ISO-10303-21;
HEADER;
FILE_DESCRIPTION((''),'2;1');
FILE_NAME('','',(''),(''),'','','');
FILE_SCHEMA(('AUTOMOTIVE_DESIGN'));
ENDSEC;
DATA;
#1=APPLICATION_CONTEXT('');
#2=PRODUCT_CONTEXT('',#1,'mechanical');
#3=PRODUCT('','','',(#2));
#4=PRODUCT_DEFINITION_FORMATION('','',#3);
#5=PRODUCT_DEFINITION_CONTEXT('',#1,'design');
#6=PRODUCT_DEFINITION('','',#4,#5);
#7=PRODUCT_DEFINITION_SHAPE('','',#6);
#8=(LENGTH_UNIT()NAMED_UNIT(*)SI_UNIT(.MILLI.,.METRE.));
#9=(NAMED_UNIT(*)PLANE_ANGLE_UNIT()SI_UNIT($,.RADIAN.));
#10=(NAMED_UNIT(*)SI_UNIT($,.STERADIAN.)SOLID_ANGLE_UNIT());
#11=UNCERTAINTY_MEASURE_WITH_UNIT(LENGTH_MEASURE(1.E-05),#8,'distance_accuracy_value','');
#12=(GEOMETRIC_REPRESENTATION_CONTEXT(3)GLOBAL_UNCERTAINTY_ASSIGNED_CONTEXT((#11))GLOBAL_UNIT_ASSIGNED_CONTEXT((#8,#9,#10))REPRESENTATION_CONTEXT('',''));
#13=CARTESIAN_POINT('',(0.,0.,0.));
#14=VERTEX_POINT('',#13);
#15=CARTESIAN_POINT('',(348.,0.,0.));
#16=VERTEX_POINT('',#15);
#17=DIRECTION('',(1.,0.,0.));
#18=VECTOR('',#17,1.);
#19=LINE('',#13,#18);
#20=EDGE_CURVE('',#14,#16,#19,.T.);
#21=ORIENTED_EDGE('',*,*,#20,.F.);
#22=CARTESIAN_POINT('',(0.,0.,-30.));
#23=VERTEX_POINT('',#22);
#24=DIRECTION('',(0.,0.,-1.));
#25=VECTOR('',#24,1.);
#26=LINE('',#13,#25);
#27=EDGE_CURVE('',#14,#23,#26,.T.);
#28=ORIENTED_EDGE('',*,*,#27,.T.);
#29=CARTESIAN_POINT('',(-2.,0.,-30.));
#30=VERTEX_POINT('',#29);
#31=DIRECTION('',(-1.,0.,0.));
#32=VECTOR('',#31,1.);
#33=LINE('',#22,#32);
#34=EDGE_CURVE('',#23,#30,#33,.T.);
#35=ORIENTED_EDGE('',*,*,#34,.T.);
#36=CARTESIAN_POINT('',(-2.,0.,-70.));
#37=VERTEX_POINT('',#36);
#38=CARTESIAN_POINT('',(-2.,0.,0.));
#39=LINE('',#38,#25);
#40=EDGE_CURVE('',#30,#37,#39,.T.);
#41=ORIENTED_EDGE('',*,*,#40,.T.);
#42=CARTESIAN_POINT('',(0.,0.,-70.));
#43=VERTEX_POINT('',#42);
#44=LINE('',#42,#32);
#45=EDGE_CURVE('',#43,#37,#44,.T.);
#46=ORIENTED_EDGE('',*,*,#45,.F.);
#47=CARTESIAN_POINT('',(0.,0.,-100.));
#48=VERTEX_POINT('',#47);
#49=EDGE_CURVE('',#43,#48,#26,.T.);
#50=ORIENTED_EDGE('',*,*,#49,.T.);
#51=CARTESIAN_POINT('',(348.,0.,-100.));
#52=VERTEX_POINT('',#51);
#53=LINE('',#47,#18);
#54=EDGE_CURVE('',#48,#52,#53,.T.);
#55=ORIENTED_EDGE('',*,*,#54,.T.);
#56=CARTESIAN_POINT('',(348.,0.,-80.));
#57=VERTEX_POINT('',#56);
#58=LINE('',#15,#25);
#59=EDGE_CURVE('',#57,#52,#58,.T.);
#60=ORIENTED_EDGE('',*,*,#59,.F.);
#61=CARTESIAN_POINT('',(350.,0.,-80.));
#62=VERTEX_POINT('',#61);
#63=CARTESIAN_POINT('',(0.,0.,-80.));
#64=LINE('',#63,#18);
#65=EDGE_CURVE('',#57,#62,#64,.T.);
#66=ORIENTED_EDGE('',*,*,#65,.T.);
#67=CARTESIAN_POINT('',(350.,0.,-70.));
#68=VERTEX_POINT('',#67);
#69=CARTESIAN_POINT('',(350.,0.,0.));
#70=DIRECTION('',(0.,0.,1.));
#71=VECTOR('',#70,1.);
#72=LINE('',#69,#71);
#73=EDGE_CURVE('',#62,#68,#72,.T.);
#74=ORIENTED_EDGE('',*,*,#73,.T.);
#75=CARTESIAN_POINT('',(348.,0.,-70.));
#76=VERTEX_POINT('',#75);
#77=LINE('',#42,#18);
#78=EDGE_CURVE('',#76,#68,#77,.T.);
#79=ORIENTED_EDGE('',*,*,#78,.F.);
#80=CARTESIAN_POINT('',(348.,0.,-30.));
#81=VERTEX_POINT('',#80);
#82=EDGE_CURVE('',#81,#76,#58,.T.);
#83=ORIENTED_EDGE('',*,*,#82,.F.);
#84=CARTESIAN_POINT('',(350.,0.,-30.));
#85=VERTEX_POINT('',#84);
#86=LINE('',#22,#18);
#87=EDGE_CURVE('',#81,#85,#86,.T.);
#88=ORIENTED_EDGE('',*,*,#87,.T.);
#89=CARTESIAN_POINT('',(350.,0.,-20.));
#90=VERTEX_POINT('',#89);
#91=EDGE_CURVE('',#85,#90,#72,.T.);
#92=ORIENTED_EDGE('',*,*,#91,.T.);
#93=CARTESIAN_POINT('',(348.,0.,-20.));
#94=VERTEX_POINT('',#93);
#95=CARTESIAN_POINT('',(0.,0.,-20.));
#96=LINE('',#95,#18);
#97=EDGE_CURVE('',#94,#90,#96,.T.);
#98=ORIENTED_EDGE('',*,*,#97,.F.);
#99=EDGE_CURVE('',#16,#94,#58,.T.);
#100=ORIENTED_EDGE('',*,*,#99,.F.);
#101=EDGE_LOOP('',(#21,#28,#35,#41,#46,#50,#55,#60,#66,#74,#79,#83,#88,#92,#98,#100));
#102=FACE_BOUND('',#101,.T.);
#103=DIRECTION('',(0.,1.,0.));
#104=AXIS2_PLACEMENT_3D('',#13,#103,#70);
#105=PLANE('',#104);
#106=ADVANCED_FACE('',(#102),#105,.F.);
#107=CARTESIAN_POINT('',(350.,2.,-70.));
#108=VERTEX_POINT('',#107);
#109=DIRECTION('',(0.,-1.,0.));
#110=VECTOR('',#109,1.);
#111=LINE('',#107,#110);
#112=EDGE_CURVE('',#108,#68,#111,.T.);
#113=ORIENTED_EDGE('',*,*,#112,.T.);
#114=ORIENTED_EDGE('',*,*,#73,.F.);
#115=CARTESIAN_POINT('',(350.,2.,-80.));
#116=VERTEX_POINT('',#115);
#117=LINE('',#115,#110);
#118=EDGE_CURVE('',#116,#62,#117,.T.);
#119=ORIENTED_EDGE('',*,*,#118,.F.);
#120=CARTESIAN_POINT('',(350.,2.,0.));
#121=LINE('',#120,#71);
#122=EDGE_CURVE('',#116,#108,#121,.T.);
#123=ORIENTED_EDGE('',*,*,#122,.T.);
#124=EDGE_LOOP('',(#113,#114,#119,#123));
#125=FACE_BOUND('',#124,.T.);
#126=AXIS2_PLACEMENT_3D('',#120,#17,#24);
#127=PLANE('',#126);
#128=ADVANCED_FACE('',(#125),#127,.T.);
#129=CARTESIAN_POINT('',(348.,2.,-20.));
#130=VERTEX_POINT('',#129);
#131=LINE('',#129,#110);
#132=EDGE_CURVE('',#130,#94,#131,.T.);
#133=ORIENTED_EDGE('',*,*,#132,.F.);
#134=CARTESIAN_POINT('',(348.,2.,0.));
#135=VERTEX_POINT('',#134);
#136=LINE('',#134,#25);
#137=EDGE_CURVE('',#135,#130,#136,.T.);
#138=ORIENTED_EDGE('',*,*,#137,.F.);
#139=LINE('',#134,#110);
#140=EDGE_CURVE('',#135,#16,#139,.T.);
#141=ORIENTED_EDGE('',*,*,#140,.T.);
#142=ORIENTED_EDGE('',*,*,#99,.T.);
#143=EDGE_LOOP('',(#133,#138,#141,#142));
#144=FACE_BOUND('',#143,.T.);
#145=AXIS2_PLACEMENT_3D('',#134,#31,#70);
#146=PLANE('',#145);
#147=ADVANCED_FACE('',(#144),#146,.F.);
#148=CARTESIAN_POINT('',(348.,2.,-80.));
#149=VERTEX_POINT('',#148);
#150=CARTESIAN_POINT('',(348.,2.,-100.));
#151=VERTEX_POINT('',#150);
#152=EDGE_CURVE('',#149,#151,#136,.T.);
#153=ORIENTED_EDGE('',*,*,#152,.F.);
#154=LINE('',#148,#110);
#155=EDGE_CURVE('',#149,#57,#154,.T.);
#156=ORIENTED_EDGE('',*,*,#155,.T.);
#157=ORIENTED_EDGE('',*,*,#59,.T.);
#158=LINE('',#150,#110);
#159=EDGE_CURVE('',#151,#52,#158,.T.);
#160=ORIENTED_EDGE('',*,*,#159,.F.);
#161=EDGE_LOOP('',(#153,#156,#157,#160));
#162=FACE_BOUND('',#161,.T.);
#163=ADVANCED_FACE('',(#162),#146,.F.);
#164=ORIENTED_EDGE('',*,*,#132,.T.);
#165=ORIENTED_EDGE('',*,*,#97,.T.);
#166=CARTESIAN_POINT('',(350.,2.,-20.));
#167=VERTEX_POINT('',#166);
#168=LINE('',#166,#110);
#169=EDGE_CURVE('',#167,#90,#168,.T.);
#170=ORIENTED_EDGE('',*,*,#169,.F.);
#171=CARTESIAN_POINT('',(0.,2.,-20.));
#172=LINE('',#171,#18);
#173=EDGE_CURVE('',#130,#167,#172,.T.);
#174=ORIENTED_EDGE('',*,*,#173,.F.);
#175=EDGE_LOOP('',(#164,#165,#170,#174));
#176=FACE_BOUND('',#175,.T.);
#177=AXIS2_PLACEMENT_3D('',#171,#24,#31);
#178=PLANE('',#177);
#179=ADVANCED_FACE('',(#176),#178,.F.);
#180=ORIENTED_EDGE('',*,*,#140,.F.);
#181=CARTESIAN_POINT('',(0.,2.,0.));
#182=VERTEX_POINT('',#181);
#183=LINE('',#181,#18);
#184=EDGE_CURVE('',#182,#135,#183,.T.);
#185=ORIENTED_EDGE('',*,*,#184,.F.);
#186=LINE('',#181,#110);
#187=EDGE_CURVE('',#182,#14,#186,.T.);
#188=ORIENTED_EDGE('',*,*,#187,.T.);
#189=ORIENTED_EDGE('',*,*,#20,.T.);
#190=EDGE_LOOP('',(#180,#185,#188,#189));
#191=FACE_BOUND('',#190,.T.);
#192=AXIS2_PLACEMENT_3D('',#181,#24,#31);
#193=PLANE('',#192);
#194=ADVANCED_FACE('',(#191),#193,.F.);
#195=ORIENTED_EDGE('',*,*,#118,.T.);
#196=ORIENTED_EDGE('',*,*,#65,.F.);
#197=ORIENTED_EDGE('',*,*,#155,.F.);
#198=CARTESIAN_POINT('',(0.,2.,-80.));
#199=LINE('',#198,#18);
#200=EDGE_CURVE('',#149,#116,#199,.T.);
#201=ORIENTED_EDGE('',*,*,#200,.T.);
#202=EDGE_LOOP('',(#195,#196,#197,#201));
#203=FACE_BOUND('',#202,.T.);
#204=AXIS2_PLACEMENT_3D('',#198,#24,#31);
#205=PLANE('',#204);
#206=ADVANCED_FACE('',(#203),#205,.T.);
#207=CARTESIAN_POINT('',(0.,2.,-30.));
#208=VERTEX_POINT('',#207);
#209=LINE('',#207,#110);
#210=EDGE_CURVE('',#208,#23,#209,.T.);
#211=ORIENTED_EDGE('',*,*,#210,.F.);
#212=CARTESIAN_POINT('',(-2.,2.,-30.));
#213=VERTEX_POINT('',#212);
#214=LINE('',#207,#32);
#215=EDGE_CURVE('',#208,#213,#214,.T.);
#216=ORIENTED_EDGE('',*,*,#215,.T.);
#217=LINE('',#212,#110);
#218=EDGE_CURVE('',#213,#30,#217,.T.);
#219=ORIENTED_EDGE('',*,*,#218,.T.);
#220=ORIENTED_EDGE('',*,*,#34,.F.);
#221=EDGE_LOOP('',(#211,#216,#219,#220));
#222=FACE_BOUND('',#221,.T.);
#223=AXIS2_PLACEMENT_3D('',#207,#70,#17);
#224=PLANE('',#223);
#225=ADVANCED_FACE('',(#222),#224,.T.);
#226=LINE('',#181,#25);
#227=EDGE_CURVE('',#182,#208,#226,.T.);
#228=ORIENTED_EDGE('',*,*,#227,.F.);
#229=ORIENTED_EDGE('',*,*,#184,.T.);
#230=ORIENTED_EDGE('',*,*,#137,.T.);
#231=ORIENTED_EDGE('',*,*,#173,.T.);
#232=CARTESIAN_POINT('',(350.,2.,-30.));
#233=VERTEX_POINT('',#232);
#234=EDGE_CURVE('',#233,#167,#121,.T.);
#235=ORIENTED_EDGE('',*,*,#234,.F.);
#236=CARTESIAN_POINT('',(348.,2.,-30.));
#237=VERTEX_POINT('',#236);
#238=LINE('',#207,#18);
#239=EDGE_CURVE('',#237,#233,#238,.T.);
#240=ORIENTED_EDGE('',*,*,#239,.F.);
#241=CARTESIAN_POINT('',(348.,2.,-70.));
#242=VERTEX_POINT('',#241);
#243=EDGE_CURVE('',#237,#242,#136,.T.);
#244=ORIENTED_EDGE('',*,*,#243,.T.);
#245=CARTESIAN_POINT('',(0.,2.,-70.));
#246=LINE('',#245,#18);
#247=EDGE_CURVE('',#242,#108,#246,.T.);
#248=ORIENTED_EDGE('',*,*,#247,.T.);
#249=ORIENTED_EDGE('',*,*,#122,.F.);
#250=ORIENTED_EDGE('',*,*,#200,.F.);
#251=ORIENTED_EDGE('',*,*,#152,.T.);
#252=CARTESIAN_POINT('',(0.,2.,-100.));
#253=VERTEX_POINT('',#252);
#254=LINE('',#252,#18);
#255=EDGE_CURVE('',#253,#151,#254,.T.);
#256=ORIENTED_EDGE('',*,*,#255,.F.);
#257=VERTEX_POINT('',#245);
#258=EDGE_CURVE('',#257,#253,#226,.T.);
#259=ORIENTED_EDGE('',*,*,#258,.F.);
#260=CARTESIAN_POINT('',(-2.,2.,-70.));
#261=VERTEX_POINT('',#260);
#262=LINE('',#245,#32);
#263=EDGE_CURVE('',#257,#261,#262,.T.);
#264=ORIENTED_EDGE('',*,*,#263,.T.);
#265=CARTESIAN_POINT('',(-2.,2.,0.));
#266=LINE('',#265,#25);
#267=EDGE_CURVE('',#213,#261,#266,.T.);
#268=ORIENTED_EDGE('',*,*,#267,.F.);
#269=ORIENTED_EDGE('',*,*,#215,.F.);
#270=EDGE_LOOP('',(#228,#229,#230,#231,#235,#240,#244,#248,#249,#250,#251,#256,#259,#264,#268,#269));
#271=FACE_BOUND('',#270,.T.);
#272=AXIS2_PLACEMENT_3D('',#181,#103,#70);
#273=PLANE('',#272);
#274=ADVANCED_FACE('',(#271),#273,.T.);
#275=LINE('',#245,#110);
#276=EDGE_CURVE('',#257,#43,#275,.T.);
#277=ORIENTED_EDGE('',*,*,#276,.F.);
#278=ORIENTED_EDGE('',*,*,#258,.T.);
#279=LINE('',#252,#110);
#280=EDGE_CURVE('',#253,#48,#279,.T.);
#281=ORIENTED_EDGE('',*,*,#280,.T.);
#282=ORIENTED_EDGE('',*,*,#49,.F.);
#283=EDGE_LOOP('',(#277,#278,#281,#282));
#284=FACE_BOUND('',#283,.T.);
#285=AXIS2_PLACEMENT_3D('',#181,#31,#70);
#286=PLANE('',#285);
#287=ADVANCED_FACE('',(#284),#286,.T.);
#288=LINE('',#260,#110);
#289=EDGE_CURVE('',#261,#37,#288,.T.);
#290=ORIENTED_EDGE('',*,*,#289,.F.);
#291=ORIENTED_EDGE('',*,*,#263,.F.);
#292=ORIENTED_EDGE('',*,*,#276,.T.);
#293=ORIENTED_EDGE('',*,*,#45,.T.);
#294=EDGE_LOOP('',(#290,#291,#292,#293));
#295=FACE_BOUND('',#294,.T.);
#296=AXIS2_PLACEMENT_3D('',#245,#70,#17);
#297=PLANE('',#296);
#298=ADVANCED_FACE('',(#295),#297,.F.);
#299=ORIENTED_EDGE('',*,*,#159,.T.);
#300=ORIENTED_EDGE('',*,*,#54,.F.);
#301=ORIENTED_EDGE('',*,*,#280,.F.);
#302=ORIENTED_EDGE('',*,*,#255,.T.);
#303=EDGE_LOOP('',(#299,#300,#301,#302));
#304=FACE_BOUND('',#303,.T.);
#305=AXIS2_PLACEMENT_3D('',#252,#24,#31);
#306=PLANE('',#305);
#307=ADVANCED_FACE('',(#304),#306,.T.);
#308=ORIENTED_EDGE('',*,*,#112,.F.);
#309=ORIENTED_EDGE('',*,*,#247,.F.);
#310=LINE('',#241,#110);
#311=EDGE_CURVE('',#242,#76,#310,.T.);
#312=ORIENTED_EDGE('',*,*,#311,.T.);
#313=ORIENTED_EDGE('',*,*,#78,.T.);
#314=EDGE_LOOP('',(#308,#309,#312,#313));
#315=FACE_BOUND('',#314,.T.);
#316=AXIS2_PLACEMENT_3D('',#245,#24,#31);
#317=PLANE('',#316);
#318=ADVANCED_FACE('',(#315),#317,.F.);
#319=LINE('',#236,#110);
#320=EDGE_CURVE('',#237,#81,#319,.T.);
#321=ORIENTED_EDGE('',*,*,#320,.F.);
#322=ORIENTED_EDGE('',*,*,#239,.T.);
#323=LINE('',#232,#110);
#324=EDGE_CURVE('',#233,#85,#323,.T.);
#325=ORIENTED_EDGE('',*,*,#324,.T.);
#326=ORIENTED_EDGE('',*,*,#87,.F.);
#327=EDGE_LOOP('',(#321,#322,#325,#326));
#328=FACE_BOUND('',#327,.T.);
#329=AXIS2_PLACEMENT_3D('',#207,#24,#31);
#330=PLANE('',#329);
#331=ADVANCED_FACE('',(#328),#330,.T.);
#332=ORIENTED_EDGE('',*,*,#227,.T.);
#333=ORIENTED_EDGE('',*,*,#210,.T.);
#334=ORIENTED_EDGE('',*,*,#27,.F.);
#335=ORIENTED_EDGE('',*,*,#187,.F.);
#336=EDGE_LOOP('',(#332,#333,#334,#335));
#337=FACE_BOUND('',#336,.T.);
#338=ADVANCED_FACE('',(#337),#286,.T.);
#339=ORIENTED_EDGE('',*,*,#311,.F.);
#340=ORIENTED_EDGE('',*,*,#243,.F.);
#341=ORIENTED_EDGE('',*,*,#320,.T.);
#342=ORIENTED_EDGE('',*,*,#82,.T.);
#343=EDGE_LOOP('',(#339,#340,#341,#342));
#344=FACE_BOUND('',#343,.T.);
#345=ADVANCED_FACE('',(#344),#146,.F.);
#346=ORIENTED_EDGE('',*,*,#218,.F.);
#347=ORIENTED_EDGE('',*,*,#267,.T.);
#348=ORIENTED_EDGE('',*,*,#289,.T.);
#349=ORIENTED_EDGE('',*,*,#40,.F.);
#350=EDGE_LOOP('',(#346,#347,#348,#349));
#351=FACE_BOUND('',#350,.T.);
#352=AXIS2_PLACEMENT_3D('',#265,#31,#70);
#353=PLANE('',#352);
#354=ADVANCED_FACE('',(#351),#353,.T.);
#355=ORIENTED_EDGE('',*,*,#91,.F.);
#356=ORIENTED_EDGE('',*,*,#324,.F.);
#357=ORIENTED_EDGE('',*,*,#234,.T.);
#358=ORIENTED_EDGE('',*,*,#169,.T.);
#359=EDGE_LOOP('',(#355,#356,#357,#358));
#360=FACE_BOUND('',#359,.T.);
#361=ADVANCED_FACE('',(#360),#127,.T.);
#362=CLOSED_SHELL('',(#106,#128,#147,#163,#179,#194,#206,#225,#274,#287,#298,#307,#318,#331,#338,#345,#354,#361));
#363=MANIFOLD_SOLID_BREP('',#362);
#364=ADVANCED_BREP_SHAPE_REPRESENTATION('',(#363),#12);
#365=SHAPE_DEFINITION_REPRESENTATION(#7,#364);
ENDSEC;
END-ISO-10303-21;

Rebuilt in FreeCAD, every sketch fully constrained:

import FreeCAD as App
import Part
import Sketcher
Q = App.Units.Quantity

doc = App.newDocument("Part")
body = doc.addObject("PartDesign::Body", "Body")

sketch1 = doc.addObject("Sketcher::SketchObject", "Sketch")
body.addObject(sketch1)
sketch1.AttachmentSupport = (doc.XZ_Plane, [""])
sketch1.MapMode = "FlatFace"
sketch1.addGeometry([
    Part.LineSegment(App.Vector(348, -20, 0), App.Vector(350, -20, 0)),
    Part.LineSegment(App.Vector(350, -20, 0), App.Vector(350, -30, 0)),
    Part.LineSegment(App.Vector(350, -30, 0), App.Vector(348, -30, 0)),
    Part.LineSegment(App.Vector(348, -30, 0), App.Vector(348, -70, 0)),
    Part.LineSegment(App.Vector(348, -70, 0), App.Vector(350, -70, 0)),
    Part.LineSegment(App.Vector(350, -70, 0), App.Vector(350, -80, 0)),
    Part.LineSegment(App.Vector(350, -80, 0), App.Vector(348, -80, 0)),
    Part.LineSegment(App.Vector(348, -80, 0), App.Vector(348, -100, 0)),
    Part.LineSegment(App.Vector(348, -100, 0), App.Vector(0, -100, 0)),
    Part.LineSegment(App.Vector(0, -100, 0), App.Vector(0, -70, 0)),
    Part.LineSegment(App.Vector(0, -70, 0), App.Vector(-2, -70, 0)),
    Part.LineSegment(App.Vector(-2, -70, 0), App.Vector(-2, -30, 0)),
    Part.LineSegment(App.Vector(-2, -30, 0), App.Vector(0, -30, 0)),
    Part.LineSegment(App.Vector(0, -30, 0), App.Vector(0, 0, 0)),
    Part.LineSegment(App.Vector(0, 0, 0), App.Vector(348, 0, 0)),
    Part.LineSegment(App.Vector(348, 0, 0), App.Vector(348, -20, 0)),
], False)
sketch1.addConstraint([
    Sketcher.Constraint("Coincident", 0, 2, 1, 1),
    Sketcher.Constraint("Coincident", 1, 2, 2, 1),
    Sketcher.Constraint("Coincident", 2, 2, 3, 1),
    Sketcher.Constraint("Coincident", 3, 2, 4, 1),
    Sketcher.Constraint("Coincident", 4, 2, 5, 1),
    Sketcher.Constraint("Coincident", 5, 2, 6, 1),
    Sketcher.Constraint("Coincident", 6, 2, 7, 1),
    Sketcher.Constraint("Coincident", 7, 2, 8, 1),
    Sketcher.Constraint("Coincident", 8, 2, 9, 1),
    Sketcher.Constraint("Coincident", 9, 2, 10, 1),
    Sketcher.Constraint("Coincident", 10, 2, 11, 1),
    Sketcher.Constraint("Coincident", 11, 2, 12, 1),
    Sketcher.Constraint("Coincident", 12, 2, 13, 1),
    Sketcher.Constraint("Coincident", 13, 2, 14, 1),
    Sketcher.Constraint("Coincident", 14, 2, 15, 1),
    Sketcher.Constraint("Coincident", 15, 2, 0, 1),
    Sketcher.Constraint("Horizontal", 0),
    Sketcher.Constraint("Vertical", 1),
    Sketcher.Constraint("Horizontal", 2),
    Sketcher.Constraint("Vertical", 3),
    Sketcher.Constraint("Horizontal", 4),
    Sketcher.Constraint("Vertical", 5),
    Sketcher.Constraint("Horizontal", 6),
    Sketcher.Constraint("Vertical", 7),
    Sketcher.Constraint("Horizontal", 8),
    Sketcher.Constraint("Vertical", 9),
    Sketcher.Constraint("Horizontal", 10),
    Sketcher.Constraint("Vertical", 11),
    Sketcher.Constraint("Horizontal", 12),
    Sketcher.Constraint("Vertical", 13),
    Sketcher.Constraint("Horizontal", 14),
    Sketcher.Constraint("Vertical", 15),
    Sketcher.Constraint("Coincident", 13, 2, -1, 1),
    Sketcher.Constraint("PointOnObject", 8, 2, -2),
    Sketcher.Constraint("Horizontal", 4, 2, 9, 2),
    Sketcher.Constraint("Horizontal", 2, 2, 11, 2),
    Sketcher.Constraint("Vertical", 1, 2, 4, 2),
    Sketcher.Constraint("Vertical", 3, 2, 6, 2),
    Sketcher.Constraint("Vertical", 7, 2, 14, 2),
    Sketcher.Constraint("Equal", 6, 10),
    Sketcher.Constraint("Equal", 1, 5),
    Sketcher.Constraint("Equal", 9, 13),
    Sketcher.Constraint("DistanceX", 0, 1, 0, 2, Q("2 mm")),
    Sketcher.Constraint("DistanceX", 8, 2, 8, 1, Q("348 mm")),
    Sketcher.Constraint("DistanceY", 1, 2, 1, 1, Q("10 mm")),
    Sketcher.Constraint("DistanceY", 3, 2, 3, 1, Q("40 mm")),
    Sketcher.Constraint("DistanceY", 7, 2, 7, 1, Q("20 mm")),
])
pad1 = doc.addObject("PartDesign::Pad", "Pad")
body.addObject(pad1)
pad1.Profile = sketch1
pad1.Length = 2
pad1.Reversed = True

doc.recompute()
